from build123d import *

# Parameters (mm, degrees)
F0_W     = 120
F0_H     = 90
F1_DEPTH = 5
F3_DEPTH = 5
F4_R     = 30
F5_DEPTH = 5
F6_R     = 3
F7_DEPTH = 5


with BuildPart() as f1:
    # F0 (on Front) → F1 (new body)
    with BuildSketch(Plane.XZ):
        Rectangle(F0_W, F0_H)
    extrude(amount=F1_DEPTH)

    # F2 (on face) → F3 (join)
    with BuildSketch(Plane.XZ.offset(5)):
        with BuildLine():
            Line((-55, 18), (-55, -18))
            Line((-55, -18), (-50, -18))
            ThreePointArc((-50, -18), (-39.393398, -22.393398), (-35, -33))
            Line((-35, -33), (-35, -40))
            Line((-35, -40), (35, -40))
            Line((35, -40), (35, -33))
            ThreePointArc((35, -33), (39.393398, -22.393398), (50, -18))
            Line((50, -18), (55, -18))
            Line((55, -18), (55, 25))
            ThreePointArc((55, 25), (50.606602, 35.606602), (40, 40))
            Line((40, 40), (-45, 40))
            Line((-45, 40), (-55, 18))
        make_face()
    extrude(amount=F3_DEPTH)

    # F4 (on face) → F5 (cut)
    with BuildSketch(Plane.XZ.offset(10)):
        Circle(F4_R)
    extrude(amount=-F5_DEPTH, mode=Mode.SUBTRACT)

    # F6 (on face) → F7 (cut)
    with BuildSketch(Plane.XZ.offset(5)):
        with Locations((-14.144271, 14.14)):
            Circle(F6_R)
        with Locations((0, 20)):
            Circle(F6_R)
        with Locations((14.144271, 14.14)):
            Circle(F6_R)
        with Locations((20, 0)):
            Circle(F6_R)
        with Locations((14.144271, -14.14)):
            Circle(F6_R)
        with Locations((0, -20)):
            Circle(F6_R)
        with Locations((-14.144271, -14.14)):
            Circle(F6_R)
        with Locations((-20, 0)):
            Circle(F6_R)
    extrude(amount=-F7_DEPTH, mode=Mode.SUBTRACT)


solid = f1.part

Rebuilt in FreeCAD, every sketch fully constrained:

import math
import FreeCAD as App
import Part
import Sketcher

V = App.Vector
Q = App.Units.Quantity


def add_polygon(sketch, points):
    """Adds a closed chain of lines whose ends are joined by coincident constraints."""
    first, n = sketch.GeometryCount, len(points)
    for a, b in zip(points, points[1:] + points[:1]):
        sketch.addGeometry(Part.LineSegment(App.Vector(*a, 0), App.Vector(*b, 0)), False)
    for i in range(n):
        sketch.addConstraint(Sketcher.Constraint("Coincident", first + i, 2, first + (i + 1) % n, 1))

doc = App.newDocument("Part")
body = doc.addObject("PartDesign::Body", "Body")

# Sketch on XZ plane
sketch1 = doc.addObject("Sketcher::SketchObject", "Sketch")
body.addObject(sketch1)
sketch1.AttachmentSupport = (doc.XZ_Plane, [""])
sketch1.MapMode = "FlatFace"
add_polygon(sketch1, [(-60, 45), (-60, -45), (60, -45), (60, 45)])  # lines 0-3
sketch1.addConstraint(Sketcher.Constraint("Vertical", 0))
sketch1.addConstraint(Sketcher.Constraint("Horizontal", 1))
sketch1.addConstraint(Sketcher.Constraint("Vertical", 2))
sketch1.addConstraint(Sketcher.Constraint("Horizontal", 3))
sketch1.addConstraint(Sketcher.Constraint("Symmetric", 0, 2, 2, 2, -1, 1))
sketch1.addConstraint(Sketcher.Constraint("DistanceX", 1, 1, 1, 2, Q("120 mm")))
sketch1.addConstraint(Sketcher.Constraint("DistanceY", 0, 2, 0, 1, Q("90 mm")))
pad1 = doc.addObject("PartDesign::Pad", "Pad")
body.addObject(pad1)
pad1.Profile = sketch1
pad1.Length = 5

# Sketch on XZ plane
sketch2 = doc.addObject("Sketcher::SketchObject", "Sketch001")
body.addObject(sketch2)
sketch2.AttachmentSupport = (doc.XZ_Plane, [""])
sketch2.MapMode = "FlatFace"
sketch2.AttachmentOffset = App.Placement(V(0, 0, 5), App.Rotation())
sketch2.addGeometry(Part.LineSegment(V(-55, 18, 0), V(-55, -18, 0)), False)
sketch2.addGeometry(Part.LineSegment(V(-55, -18, 0), V(-50, -18, 0)), False)
sketch2.addGeometry(Part.ArcOfCircle(Part.Circle(V(-49.999999, -32.999999, 0), V(0, 0, 1), 14.999999), math.radians(-0.000004), math.radians(90.000004)), False)
sketch2.addGeometry(Part.LineSegment(V(-35, -33, 0), V(-35, -40, 0)), False)
sketch2.addGeometry(Part.LineSegment(V(-35, -40, 0), V(35, -40, 0)), False)
sketch2.addGeometry(Part.LineSegment(V(35, -40, 0), V(35, -33, 0)), False)
sketch2.addGeometry(Part.ArcOfCircle(Part.Circle(V(49.999999, -32.999999, 0), V(0, 0, 1), 14.999999), math.radians(89.999996), math.radians(180.000004)), False)
sketch2.addGeometry(Part.LineSegment(V(50, -18, 0), V(55, -18, 0)), False)
sketch2.addGeometry(Part.LineSegment(V(55, -18, 0), V(55, 25, 0)), False)
sketch2.addGeometry(Part.ArcOfCircle(Part.Circle(V(40.000001, 25.000001, 0), V(0, 0, 1), 14.999999), math.radians(-0.000004), math.radians(90.000004)), False)
sketch2.addGeometry(Part.LineSegment(V(40, 40, 0), V(-45, 40, 0)), False)
sketch2.addGeometry(Part.LineSegment(V(-45, 40, 0), V(-55, 18, 0)), False)
sketch2.addConstraint(Sketcher.Constraint("Coincident", 0, 2, 1, 1))
sketch2.addConstraint(Sketcher.Constraint("Tangent", 1, 2, 2, 2))
sketch2.addConstraint(Sketcher.Constraint("Tangent", 2, 1, 3, 1))
sketch2.addConstraint(Sketcher.Constraint("Coincident", 3, 2, 4, 1))
sketch2.addConstraint(Sketcher.Constraint("Coincident", 4, 2, 5, 1))
sketch2.addConstraint(Sketcher.Constraint("Tangent", 5, 2, 6, 2))
sketch2.addConstraint(Sketcher.Constraint("Tangent", 6, 1, 7, 1))
sketch2.addConstraint(Sketcher.Constraint("Coincident", 7, 2, 8, 1))
sketch2.addConstraint(Sketcher.Constraint("Tangent", 8, 2, 9, 1))
sketch2.addConstraint(Sketcher.Constraint("Tangent", 9, 2, 10, 1))
sketch2.addConstraint(Sketcher.Constraint("Coincident", 10, 2, 11, 1))
sketch2.addConstraint(Sketcher.Constraint("Coincident", 11, 2, 0, 1))
sketch2.addConstraint(Sketcher.Constraint("Vertical", 0))
sketch2.addConstraint(Sketcher.Constraint("Horizontal", 1))
sketch2.addConstraint(Sketcher.Constraint("Vertical", 3))
sketch2.addConstraint(Sketcher.Constraint("Horizontal", 4))
sketch2.addConstraint(Sketcher.Constraint("Vertical", 5))
sketch2.addConstraint(Sketcher.Constraint("Horizontal", 7))
sketch2.addConstraint(Sketcher.Constraint("Vertical", 8))
sketch2.addConstraint(Sketcher.Constraint("Horizontal", 10))
sketch2.addConstraint(Sketcher.Constraint("Equal", 2, 6))
sketch2.addConstraint(Sketcher.Constraint("Equal", 6, 9))
sketch2.addConstraint(Sketcher.Constraint("Symmetric", 7, 2, 11, 2, -1, 1))
sketch2.addConstraint(Sketcher.Constraint("Symmetric", 2, 3, 6, 3, -2))
sketch2.addConstraint(Sketcher.Constraint("Radius", 2, Q("14.999999 mm")))
sketch2.addConstraint(Sketcher.Constraint("DistanceX", 1, 1, 1, 2, Q("5 mm")))
sketch2.addConstraint(Sketcher.Constraint("DistanceX", 4, 1, 4, 2, Q("70 mm")))
sketch2.addConstraint(Sketcher.Constraint("DistanceX", 10, 2, 10, 1, Q("85 mm")))
sketch2.addConstraint(Sketcher.Constraint("DistanceY", 0, 2, 0, 1, Q("36 mm")))
sketch2.addConstraint(Sketcher.Constraint("DistanceY", 3, 2, 3, 1, Q("7 mm")))
sketch2.addConstraint(Sketcher.Constraint("DistanceY", 8, 1, 8, 2, Q("43 mm")))
pad2 = doc.addObject("PartDesign::Pad", "Pad001")
body.addObject(pad2)
pad2.Profile = sketch2
pad2.Length = 5

# Sketch on XZ plane
sketch3 = doc.addObject("Sketcher::SketchObject", "Sketch002")
body.addObject(sketch3)
sketch3.AttachmentSupport = (doc.XZ_Plane, [""])
sketch3.MapMode = "FlatFace"
sketch3.AttachmentOffset = App.Placement(V(0, 0, 10), App.Rotation())
sketch3.addGeometry(Part.Circle(V(0, 0, 0), V(0, 0, 1), 30), False)
sketch3.addConstraint(Sketcher.Constraint("Coincident", 0, 3, -1, 1))
sketch3.addConstraint(Sketcher.Constraint("Diameter", 0, Q("60 mm")))
pocket1 = doc.addObject("PartDesign::Pocket", "Pocket")
body.addObject(pocket1)
pocket1.Profile = sketch3
pocket1.Length = 5

# Sketch on XZ plane
sketch4 = doc.addObject("Sketcher::SketchObject", "Sketch003")
body.addObject(sketch4)
sketch4.AttachmentSupport = (doc.XZ_Plane, [""])
sketch4.MapMode = "FlatFace"
sketch4.AttachmentOffset = App.Placement(V(0, 0, 5), App.Rotation())
sketch4.addGeometry(Part.Circle(V(-14.144271, 14.14, 0), V(0, 0, 1), 3), False)
sketch4.addGeometry(Part.Circle(V(0, 20, 0), V(0, 0, 1), 3), False)
sketch4.addGeometry(Part.Circle(V(14.144271, 14.14, 0), V(0, 0, 1), 3), False)
sketch4.addGeometry(Part.Circle(V(20, 0, 0), V(0, 0, 1), 3), False)
sketch4.addGeometry(Part.Circle(V(14.144271, -14.14, 0), V(0, 0, 1), 3), False)
sketch4.addGeometry(Part.Circle(V(0, -20, 0), V(0, 0, 1), 3), False)
sketch4.addGeometry(Part.Circle(V(-14.144271, -14.14, 0), V(0, 0, 1), 3), False)
sketch4.addGeometry(Part.Circle(V(-20, 0, 0), V(0, 0, 1), 3), False)
sketch4.addConstraint(Sketcher.Constraint("Equal", 0, 1))
sketch4.addConstraint(Sketcher.Constraint("Equal", 1, 2))
sketch4.addConstraint(Sketcher.Constraint("Equal", 2, 3))
sketch4.addConstraint(Sketcher.Constraint("Equal", 3, 4))
sketch4.addConstraint(Sketcher.Constraint("Equal", 4, 5))
sketch4.addConstraint(Sketcher.Constraint("Equal", 5, 6))
sketch4.addConstraint(Sketcher.Constraint("Equal", 6, 7))
sketch4.addConstraint(Sketcher.Constraint("Symmetric", 0, 3, 4, 3, -1, 1))
sketch4.addConstraint(Sketcher.Constraint("Symmetric", 1, 3, 5, 3, -1, 1))
sketch4.addConstraint(Sketcher.Constraint("Symmetric", 2, 3, 6, 3, -1, 1))
sketch4.addConstraint(Sketcher.Constraint("Symmetric", 3, 3, 7, 3, -1, 1))
sketch4.addConstraint(Sketcher.Constraint("Symmetric", 0, 3, 2, 3, -2))
sketch4.addConstraint(Sketcher.Constraint("PointOnObject", 1, 3, -2))
sketch4.addConstraint(Sketcher.Constraint("PointOnObject", 3, 3, -1))
sketch4.addConstraint(Sketcher.Constraint("Diameter", 0, Q("6 mm")))
sketch4.addConstraint(Sketcher.Constraint("DistanceY", -1, 1, 1, 3, Q("20 mm")))
sketch4.addConstraint(Sketcher.Constraint("DistanceX", -1, 1, 3, 3, Q("20 mm")))
sketch4.addConstraint(Sketcher.Constraint("DistanceY", -1, 1, 0, 3, Q("14.14 mm")))
sketch4.addConstraint(Sketcher.Constraint("DistanceX", 0, 3, -1, 1, Q("14.144271 mm")))
pocket2 = doc.addObject("PartDesign::Pocket", "Pocket001")
body.addObject(pocket2)
pocket2.Profile = sketch4
pocket2.Length = 5

doc.recompute()
